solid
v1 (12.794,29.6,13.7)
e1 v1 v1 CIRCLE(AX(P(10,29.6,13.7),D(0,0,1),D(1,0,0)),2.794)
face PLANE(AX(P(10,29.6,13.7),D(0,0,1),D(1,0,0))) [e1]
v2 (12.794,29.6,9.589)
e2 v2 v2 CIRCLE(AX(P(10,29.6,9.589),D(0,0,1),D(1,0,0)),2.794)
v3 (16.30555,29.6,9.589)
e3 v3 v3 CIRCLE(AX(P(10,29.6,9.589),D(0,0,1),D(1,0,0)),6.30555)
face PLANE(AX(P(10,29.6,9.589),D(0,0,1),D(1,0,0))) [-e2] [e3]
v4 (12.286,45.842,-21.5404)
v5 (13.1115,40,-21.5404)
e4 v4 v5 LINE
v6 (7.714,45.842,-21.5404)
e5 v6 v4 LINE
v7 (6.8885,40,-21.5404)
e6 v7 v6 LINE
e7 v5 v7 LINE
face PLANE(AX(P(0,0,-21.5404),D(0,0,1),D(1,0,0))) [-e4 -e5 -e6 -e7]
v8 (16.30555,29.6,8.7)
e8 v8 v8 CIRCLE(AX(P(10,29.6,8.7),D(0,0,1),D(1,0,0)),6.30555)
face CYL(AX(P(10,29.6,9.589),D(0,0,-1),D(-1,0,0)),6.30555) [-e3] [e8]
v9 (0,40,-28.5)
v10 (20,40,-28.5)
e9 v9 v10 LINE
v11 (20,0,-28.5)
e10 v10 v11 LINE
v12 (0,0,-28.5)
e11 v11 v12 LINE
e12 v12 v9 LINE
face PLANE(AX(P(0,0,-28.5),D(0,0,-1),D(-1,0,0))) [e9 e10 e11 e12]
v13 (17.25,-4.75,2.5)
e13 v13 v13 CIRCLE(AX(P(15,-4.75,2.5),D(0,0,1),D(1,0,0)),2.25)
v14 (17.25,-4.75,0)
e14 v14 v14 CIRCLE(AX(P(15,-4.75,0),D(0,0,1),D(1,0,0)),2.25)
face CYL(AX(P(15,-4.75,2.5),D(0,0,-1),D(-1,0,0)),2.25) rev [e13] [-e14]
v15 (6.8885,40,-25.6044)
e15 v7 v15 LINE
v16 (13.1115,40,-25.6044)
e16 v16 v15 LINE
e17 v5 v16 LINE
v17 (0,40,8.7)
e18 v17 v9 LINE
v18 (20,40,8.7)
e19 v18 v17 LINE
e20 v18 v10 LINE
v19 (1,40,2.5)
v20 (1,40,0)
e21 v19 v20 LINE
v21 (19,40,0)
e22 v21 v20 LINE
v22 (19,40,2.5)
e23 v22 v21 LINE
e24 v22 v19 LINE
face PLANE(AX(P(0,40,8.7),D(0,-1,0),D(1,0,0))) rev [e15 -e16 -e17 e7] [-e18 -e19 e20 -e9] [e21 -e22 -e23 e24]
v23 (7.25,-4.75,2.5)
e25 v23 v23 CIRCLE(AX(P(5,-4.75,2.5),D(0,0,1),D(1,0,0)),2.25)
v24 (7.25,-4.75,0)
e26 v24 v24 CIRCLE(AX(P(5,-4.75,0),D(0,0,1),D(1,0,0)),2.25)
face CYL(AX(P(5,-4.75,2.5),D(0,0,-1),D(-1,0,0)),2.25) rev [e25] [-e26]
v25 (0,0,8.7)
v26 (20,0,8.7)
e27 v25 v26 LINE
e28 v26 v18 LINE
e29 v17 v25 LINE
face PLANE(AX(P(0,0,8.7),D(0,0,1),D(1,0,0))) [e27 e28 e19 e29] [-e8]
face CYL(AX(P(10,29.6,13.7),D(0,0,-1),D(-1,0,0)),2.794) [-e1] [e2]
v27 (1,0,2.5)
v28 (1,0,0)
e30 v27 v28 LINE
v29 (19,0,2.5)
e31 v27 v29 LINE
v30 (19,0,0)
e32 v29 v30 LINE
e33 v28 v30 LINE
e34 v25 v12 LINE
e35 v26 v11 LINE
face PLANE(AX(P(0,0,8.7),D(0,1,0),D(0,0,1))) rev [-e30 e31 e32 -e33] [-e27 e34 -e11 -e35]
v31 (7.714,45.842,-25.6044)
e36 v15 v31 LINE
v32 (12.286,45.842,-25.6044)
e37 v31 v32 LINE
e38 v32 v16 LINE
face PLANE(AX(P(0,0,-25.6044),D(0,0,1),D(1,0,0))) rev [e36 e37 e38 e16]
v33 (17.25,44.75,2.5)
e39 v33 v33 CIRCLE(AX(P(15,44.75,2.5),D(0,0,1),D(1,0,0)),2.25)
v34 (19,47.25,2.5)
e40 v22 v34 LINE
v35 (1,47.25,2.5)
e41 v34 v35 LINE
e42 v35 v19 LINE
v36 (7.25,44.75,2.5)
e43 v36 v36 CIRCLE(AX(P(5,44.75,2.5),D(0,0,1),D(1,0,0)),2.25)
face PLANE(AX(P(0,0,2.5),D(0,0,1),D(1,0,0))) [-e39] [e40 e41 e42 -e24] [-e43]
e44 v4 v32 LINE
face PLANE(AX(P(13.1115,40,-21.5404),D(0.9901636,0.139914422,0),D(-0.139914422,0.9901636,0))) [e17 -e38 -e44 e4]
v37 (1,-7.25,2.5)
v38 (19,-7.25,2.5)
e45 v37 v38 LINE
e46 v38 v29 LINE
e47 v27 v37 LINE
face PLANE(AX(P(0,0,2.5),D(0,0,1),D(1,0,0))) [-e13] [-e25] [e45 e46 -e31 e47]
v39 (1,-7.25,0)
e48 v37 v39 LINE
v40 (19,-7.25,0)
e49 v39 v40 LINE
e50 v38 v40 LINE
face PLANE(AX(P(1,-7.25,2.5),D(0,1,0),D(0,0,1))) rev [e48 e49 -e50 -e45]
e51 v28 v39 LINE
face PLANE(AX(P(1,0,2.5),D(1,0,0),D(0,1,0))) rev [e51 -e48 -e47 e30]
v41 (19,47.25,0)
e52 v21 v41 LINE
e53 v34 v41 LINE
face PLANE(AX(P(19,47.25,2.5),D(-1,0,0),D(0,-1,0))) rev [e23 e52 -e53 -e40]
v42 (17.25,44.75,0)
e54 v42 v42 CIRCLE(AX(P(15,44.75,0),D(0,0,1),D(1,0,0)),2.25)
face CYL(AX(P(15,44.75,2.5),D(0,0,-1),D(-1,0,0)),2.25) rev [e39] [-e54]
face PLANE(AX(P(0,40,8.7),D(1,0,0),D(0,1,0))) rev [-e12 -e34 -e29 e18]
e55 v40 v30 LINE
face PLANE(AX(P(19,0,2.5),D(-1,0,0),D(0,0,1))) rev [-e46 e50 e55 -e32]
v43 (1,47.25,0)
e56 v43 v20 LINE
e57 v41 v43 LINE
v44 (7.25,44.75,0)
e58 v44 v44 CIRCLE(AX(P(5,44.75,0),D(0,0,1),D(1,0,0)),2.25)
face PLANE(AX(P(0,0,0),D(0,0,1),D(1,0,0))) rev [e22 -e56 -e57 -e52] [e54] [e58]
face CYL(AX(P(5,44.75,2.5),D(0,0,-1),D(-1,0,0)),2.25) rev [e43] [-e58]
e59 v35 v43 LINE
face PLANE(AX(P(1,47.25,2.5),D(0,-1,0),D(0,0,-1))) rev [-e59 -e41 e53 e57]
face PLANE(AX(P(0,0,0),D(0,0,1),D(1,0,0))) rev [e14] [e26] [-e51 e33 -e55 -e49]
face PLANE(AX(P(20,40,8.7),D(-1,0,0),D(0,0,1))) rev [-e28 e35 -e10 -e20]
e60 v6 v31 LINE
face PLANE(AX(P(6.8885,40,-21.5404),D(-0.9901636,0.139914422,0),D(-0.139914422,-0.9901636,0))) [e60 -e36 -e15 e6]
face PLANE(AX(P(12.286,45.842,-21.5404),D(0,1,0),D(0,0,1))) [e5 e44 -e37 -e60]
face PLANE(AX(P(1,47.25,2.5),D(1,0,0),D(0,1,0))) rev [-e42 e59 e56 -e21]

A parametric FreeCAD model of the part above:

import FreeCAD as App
import Part
import Sketcher

V = App.Vector
Q = App.Units.Quantity


def add_polygon(sketch, points):
    """Adds a closed chain of lines whose ends are joined by coincident constraints."""
    first, n = sketch.GeometryCount, len(points)
    for a, b in zip(points, points[1:] + points[:1]):
        sketch.addGeometry(Part.LineSegment(App.Vector(*a, 0), App.Vector(*b, 0)), False)
    for i in range(n):
        sketch.addConstraint(Sketcher.Constraint("Coincident", first + i, 2, first + (i + 1) % n, 1))

doc = App.newDocument("Part")
body = doc.addObject("PartDesign::Body", "Body")

sketch1 = doc.addObject("Sketcher::SketchObject", "Sketch")
body.addObject(sketch1)
sketch1.AttachmentSupport = (doc.XY_Plane, [""])
sketch1.MapMode = "FlatFace"
add_polygon(sketch1, [(0, 40), (0, 0), (20, 0), (20, 40)])
sketch1.addConstraint(Sketcher.Constraint("Vertical", 0))
sketch1.addConstraint(Sketcher.Constraint("Horizontal", 1))
sketch1.addConstraint(Sketcher.Constraint("Vertical", 2))
sketch1.addConstraint(Sketcher.Constraint("Horizontal", 3))
sketch1.addConstraint(Sketcher.Constraint("Coincident", 0, 2, -1, 1))
sketch1.addConstraint(Sketcher.Constraint("DistanceX", 1, 1, 1, 2, Q("20 mm")))
sketch1.addConstraint(Sketcher.Constraint("DistanceY", 0, 2, 0, 1, Q("40 mm")))
pad1 = doc.addObject("PartDesign::Pad", "Pad")
body.addObject(pad1)
pad1.Profile = sketch1
pad1.Length = 8.7

sketch2 = doc.addObject("Sketcher::SketchObject", "Sketch001")
body.addObject(sketch2)
sketch2.AttachmentSupport = (doc.XY_Plane, [""])
sketch2.MapMode = "FlatFace"
add_polygon(sketch2, [(20, 40), (20, 0), (0, 0), (0, 40)])
sketch2.addConstraint(Sketcher.Constraint("Vertical", 0))
sketch2.addConstraint(Sketcher.Constraint("Horizontal", 1))
sketch2.addConstraint(Sketcher.Constraint("Vertical", 2))
sketch2.addConstraint(Sketcher.Constraint("Horizontal", 3))
sketch2.addConstraint(Sketcher.Constraint("Coincident", 1, 2, -1, 1))
sketch2.addConstraint(Sketcher.Constraint("DistanceX", 1, 2, 1, 1, Q("20 mm")))
sketch2.addConstraint(Sketcher.Constraint("DistanceY", 0, 2, 0, 1, Q("40 mm")))
pad2 = doc.addObject("PartDesign::Pad", "Pad001")
body.addObject(pad2)
pad2.Profile = sketch2
pad2.Length = 28.5
pad2.Reversed = True

sketch3 = doc.addObject("Sketcher::SketchObject", "Sketch002")
body.addObject(sketch3)
sketch3.AttachmentSupport = (doc.XY_Plane, [""])
sketch3.MapMode = "FlatFace"
add_polygon(sketch3, [(19, -7.25), (19, 0), (20, 0), (20, 40), (19, 40), (19, 47.25), (1, 47.25), (1, 40), (0, 40), (0, 0), (1, 0), (1, -7.25)])
sketch3.addGeometry(Part.Circle(V(15, -4.75, 0), V(0, 0, 1), 2.25), False)
sketch3.addGeometry(Part.Circle(V(5, -4.75, 0), V(0, 0, 1), 2.25), False)
sketch3.addGeometry(Part.Circle(V(15, 44.75, 0), V(0, 0, 1), 2.25), False)
sketch3.addGeometry(Part.Circle(V(5, 44.75, 0), V(0, 0, 1), 2.25), False)
sketch3.addConstraint(Sketcher.Constraint("Vertical", 0))
sketch3.addConstraint(Sketcher.Constraint("Horizontal", 1))
sketch3.addConstraint(Sketcher.Constraint("Vertical", 2))
sketch3.addConstraint(Sketcher.Constraint("Horizontal", 3))
sketch3.addConstraint(Sketcher.Constraint("Vertical", 4))
sketch3.addConstraint(Sketcher.Constraint("Horizontal", 5))
sketch3.addConstraint(Sketcher.Constraint("Vertical", 6))
sketch3.addConstraint(Sketcher.Constraint("Horizontal", 7))
sketch3.addConstraint(Sketcher.Constraint("Vertical", 8))
sketch3.addConstraint(Sketcher.Constraint("Horizontal", 9))
sketch3.addConstraint(Sketcher.Constraint("Vertical", 10))
sketch3.addConstraint(Sketcher.Constraint("Horizontal", 11))
sketch3.addConstraint(Sketcher.Constraint("Coincident", 8, 2, -1, 1))
sketch3.addConstraint(Sketcher.Constraint("Equal", 12, 13))
sketch3.addConstraint(Sketcher.Constraint("Equal", 13, 14))
sketch3.addConstraint(Sketcher.Constraint("Equal", 14, 15))
sketch3.addConstraint(Sketcher.Constraint("PointOnObject", 0, 2, -1))
sketch3.addConstraint(Sketcher.Constraint("Horizontal", 12, 3, 13, 3))
sketch3.addConstraint(Sketcher.Constraint("Horizontal", 14, 3, 15, 3))
sketch3.addConstraint(Sketcher.Constraint("Horizontal", 3, 2, 6, 2))
sketch3.addConstraint(Sketcher.Constraint("Vertical", 12, 3, 14, 3))
sketch3.addConstraint(Sketcher.Constraint("Vertical", 13, 3, 15, 3))
sketch3.addConstraint(Sketcher.Constraint("Vertical", 0, 2, 3, 2))
sketch3.addConstraint(Sketcher.Constraint("Vertical", 6, 2, 9, 2))
sketch3.addConstraint(Sketcher.Constraint("Equal", 3, 7))
sketch3.addConstraint(Sketcher.Constraint("Equal", 0, 4))
sketch3.addConstraint(Sketcher.Constraint("Diameter", 12, Q("4.5 mm")))
sketch3.addConstraint(Sketcher.Constraint("DistanceX", 1, 1, 1, 2, Q("1 mm")))
sketch3.addConstraint(Sketcher.Constraint("DistanceX", 5, 2, 5, 1, Q("18 mm")))
sketch3.addConstraint(Sketcher.Constraint("DistanceY", 2, 1, 2, 2, Q("40 mm")))
sketch3.addConstraint(Sketcher.Constraint("DistanceX", -1, 1, 12, 3, Q("15 mm")))
sketch3.addConstraint(Sketcher.Constraint("DistanceX", -1, 1, 13, 3, Q("5 mm")))
sketch3.addConstraint(Sketcher.Constraint("DistanceY", 0, 1, 0, 2, Q("7.25 mm")))
sketch3.addConstraint(Sketcher.Constraint("DistanceY", 12, 3, 14, 3, Q("49.5 mm")))
sketch3.addConstraint(Sketcher.Constraint("DistanceY", 14, 3, 4, 2, Q("2.5 mm")))
pad3 = doc.addObject("PartDesign::Pad", "Pad002")
body.addObject(pad3)
pad3.Profile = sketch3
pad3.Length = 2.5

sketch4 = doc.addObject("Sketcher::SketchObject", "Sketch003")
body.addObject(sketch4)
sketch4.AttachmentSupport = (doc.XY_Plane, [""])
sketch4.MapMode = "FlatFace"
sketch4.AttachmentOffset = App.Placement(V(0, 0, 8.7), App.Rotation())
sketch4.addGeometry(Part.Circle(V(10, 29.6, 0), V(0, 0, 1), 2.794), False)
sketch4.addConstraint(Sketcher.Constraint("Diameter", 0, Q("5.588 mm")))
sketch4.addConstraint(Sketcher.Constraint("DistanceX", -1, 1, 0, 3, Q("10 mm")))
sketch4.addConstraint(Sketcher.Constraint("DistanceY", -1, 1, 0, 3, Q("29.6 mm")))
pad4 = doc.addObject("PartDesign::Pad", "Pad003")
body.addObject(pad4)
pad4.Profile = sketch4
pad4.Length = 5

sketch5 = doc.addObject("Sketcher::SketchObject", "Sketch004")
body.addObject(sketch5)
sketch5.AttachmentSupport = (doc.XY_Plane, [""])
sketch5.MapMode = "FlatFace"
sketch5.AttachmentOffset = App.Placement(V(0, 0, -28.5), App.Rotation())
add_polygon(sketch5, [(13.1115, 40), (6.8885, 40), (7.714, 45.842), (12.286, 45.842)])
sketch5.addConstraint(Sketcher.Constraint("Horizontal", 0))
sketch5.addConstraint(Sketcher.Constraint("Horizontal", 2))
sketch5.addConstraint(Sketcher.Constraint("Equal", 1, 3))
sketch5.addConstraint(Sketcher.Constraint("DistanceY", -1, 1, 0, 2, Q("40 mm")))
sketch5.addConstraint(Sketcher.Constraint("DistanceX", 0, 2, 0, 1, Q("6.223 mm")))
sketch5.addConstraint(Sketcher.Constraint("DistanceX", 2, 1, 2, 2, Q("4.572 mm")))
sketch5.addConstraint(Sketcher.Constraint("DistanceX", -1, 1, 1, 2, Q("7.714 mm")))
sketch5.addConstraint(Sketcher.Constraint("DistanceY", -1, 1, 1, 2, Q("45.842 mm")))
pad5 = doc.addObject("PartDesign::Pad", "Pad004")
body.addObject(pad5)
pad5.Profile = sketch5
pad5.Length = 6.9596

sketch6 = doc.addObject("Sketcher::SketchObject", "Sketch005")
body.addObject(sketch6)
sketch6.AttachmentSupport = (doc.XY_Plane, [""])
sketch6.MapMode = "FlatFace"
sketch6.AttachmentOffset = App.Placement(V(0, 0, 8.7), App.Rotation())
sketch6.addGeometry(Part.Circle(V(10, 29.6, 0), V(0, 0, 1), 6.30555), False)
sketch6.addConstraint(Sketcher.Constraint("DistanceX", -1, 1, 0, 3, Q("10 mm")))
sketch6.addConstraint(Sketcher.Constraint("Diameter", 0, Q("12.6111 mm")))
sketch6.addConstraint(Sketcher.Constraint("DistanceY", -1, 1, 0, 3, Q("29.6 mm")))
pad6 = doc.addObject("PartDesign::Pad", "Pad005")
body.addObject(pad6)
pad6.Profile = sketch6
pad6.Length = 0.889

sketch7 = doc.addObject("Sketcher::SketchObject", "Sketch006")
body.addObject(sketch7)
sketch7.AttachmentSupport = (doc.XY_Plane, [""])
sketch7.MapMode = "FlatFace"
sketch7.AttachmentOffset = App.Placement(V(0, 0, -28.5), App.Rotation())
add_polygon(sketch7, [(7.714, 45.842), (12.286, 45.842), (13.1115, 40), (6.8885, 40)])
sketch7.addConstraint(Sketcher.Constraint("Horizontal", 0))
sketch7.addConstraint(Sketcher.Constraint("Horizontal", 2))
sketch7.addConstraint(Sketcher.Constraint("Equal", 1, 3))
sketch7.addConstraint(Sketcher.Constraint("DistanceY", -1, 1, 1, 2, Q("40 mm")))
sketch7.addConstraint(Sketcher.Constraint("DistanceX", 0, 1, 0, 2, Q("4.572 mm")))
sketch7.addConstraint(Sketcher.Constraint("DistanceX", 2, 2, 2, 1, Q("6.223 mm")))
sketch7.addConstraint(Sketcher.Constraint("DistanceX", -1, 1, 0, 2, Q("12.286 mm")))
sketch7.addConstraint(Sketcher.Constraint("DistanceY", -1, 1, 0, 2, Q("45.842 mm")))
pocket1 = doc.addObject("PartDesign::Pocket", "Pocket")
body.addObject(pocket1)
pocket1.Profile = sketch7
pocket1.Length = 2.8956
pocket1.Reversed = True

doc.recompute()
